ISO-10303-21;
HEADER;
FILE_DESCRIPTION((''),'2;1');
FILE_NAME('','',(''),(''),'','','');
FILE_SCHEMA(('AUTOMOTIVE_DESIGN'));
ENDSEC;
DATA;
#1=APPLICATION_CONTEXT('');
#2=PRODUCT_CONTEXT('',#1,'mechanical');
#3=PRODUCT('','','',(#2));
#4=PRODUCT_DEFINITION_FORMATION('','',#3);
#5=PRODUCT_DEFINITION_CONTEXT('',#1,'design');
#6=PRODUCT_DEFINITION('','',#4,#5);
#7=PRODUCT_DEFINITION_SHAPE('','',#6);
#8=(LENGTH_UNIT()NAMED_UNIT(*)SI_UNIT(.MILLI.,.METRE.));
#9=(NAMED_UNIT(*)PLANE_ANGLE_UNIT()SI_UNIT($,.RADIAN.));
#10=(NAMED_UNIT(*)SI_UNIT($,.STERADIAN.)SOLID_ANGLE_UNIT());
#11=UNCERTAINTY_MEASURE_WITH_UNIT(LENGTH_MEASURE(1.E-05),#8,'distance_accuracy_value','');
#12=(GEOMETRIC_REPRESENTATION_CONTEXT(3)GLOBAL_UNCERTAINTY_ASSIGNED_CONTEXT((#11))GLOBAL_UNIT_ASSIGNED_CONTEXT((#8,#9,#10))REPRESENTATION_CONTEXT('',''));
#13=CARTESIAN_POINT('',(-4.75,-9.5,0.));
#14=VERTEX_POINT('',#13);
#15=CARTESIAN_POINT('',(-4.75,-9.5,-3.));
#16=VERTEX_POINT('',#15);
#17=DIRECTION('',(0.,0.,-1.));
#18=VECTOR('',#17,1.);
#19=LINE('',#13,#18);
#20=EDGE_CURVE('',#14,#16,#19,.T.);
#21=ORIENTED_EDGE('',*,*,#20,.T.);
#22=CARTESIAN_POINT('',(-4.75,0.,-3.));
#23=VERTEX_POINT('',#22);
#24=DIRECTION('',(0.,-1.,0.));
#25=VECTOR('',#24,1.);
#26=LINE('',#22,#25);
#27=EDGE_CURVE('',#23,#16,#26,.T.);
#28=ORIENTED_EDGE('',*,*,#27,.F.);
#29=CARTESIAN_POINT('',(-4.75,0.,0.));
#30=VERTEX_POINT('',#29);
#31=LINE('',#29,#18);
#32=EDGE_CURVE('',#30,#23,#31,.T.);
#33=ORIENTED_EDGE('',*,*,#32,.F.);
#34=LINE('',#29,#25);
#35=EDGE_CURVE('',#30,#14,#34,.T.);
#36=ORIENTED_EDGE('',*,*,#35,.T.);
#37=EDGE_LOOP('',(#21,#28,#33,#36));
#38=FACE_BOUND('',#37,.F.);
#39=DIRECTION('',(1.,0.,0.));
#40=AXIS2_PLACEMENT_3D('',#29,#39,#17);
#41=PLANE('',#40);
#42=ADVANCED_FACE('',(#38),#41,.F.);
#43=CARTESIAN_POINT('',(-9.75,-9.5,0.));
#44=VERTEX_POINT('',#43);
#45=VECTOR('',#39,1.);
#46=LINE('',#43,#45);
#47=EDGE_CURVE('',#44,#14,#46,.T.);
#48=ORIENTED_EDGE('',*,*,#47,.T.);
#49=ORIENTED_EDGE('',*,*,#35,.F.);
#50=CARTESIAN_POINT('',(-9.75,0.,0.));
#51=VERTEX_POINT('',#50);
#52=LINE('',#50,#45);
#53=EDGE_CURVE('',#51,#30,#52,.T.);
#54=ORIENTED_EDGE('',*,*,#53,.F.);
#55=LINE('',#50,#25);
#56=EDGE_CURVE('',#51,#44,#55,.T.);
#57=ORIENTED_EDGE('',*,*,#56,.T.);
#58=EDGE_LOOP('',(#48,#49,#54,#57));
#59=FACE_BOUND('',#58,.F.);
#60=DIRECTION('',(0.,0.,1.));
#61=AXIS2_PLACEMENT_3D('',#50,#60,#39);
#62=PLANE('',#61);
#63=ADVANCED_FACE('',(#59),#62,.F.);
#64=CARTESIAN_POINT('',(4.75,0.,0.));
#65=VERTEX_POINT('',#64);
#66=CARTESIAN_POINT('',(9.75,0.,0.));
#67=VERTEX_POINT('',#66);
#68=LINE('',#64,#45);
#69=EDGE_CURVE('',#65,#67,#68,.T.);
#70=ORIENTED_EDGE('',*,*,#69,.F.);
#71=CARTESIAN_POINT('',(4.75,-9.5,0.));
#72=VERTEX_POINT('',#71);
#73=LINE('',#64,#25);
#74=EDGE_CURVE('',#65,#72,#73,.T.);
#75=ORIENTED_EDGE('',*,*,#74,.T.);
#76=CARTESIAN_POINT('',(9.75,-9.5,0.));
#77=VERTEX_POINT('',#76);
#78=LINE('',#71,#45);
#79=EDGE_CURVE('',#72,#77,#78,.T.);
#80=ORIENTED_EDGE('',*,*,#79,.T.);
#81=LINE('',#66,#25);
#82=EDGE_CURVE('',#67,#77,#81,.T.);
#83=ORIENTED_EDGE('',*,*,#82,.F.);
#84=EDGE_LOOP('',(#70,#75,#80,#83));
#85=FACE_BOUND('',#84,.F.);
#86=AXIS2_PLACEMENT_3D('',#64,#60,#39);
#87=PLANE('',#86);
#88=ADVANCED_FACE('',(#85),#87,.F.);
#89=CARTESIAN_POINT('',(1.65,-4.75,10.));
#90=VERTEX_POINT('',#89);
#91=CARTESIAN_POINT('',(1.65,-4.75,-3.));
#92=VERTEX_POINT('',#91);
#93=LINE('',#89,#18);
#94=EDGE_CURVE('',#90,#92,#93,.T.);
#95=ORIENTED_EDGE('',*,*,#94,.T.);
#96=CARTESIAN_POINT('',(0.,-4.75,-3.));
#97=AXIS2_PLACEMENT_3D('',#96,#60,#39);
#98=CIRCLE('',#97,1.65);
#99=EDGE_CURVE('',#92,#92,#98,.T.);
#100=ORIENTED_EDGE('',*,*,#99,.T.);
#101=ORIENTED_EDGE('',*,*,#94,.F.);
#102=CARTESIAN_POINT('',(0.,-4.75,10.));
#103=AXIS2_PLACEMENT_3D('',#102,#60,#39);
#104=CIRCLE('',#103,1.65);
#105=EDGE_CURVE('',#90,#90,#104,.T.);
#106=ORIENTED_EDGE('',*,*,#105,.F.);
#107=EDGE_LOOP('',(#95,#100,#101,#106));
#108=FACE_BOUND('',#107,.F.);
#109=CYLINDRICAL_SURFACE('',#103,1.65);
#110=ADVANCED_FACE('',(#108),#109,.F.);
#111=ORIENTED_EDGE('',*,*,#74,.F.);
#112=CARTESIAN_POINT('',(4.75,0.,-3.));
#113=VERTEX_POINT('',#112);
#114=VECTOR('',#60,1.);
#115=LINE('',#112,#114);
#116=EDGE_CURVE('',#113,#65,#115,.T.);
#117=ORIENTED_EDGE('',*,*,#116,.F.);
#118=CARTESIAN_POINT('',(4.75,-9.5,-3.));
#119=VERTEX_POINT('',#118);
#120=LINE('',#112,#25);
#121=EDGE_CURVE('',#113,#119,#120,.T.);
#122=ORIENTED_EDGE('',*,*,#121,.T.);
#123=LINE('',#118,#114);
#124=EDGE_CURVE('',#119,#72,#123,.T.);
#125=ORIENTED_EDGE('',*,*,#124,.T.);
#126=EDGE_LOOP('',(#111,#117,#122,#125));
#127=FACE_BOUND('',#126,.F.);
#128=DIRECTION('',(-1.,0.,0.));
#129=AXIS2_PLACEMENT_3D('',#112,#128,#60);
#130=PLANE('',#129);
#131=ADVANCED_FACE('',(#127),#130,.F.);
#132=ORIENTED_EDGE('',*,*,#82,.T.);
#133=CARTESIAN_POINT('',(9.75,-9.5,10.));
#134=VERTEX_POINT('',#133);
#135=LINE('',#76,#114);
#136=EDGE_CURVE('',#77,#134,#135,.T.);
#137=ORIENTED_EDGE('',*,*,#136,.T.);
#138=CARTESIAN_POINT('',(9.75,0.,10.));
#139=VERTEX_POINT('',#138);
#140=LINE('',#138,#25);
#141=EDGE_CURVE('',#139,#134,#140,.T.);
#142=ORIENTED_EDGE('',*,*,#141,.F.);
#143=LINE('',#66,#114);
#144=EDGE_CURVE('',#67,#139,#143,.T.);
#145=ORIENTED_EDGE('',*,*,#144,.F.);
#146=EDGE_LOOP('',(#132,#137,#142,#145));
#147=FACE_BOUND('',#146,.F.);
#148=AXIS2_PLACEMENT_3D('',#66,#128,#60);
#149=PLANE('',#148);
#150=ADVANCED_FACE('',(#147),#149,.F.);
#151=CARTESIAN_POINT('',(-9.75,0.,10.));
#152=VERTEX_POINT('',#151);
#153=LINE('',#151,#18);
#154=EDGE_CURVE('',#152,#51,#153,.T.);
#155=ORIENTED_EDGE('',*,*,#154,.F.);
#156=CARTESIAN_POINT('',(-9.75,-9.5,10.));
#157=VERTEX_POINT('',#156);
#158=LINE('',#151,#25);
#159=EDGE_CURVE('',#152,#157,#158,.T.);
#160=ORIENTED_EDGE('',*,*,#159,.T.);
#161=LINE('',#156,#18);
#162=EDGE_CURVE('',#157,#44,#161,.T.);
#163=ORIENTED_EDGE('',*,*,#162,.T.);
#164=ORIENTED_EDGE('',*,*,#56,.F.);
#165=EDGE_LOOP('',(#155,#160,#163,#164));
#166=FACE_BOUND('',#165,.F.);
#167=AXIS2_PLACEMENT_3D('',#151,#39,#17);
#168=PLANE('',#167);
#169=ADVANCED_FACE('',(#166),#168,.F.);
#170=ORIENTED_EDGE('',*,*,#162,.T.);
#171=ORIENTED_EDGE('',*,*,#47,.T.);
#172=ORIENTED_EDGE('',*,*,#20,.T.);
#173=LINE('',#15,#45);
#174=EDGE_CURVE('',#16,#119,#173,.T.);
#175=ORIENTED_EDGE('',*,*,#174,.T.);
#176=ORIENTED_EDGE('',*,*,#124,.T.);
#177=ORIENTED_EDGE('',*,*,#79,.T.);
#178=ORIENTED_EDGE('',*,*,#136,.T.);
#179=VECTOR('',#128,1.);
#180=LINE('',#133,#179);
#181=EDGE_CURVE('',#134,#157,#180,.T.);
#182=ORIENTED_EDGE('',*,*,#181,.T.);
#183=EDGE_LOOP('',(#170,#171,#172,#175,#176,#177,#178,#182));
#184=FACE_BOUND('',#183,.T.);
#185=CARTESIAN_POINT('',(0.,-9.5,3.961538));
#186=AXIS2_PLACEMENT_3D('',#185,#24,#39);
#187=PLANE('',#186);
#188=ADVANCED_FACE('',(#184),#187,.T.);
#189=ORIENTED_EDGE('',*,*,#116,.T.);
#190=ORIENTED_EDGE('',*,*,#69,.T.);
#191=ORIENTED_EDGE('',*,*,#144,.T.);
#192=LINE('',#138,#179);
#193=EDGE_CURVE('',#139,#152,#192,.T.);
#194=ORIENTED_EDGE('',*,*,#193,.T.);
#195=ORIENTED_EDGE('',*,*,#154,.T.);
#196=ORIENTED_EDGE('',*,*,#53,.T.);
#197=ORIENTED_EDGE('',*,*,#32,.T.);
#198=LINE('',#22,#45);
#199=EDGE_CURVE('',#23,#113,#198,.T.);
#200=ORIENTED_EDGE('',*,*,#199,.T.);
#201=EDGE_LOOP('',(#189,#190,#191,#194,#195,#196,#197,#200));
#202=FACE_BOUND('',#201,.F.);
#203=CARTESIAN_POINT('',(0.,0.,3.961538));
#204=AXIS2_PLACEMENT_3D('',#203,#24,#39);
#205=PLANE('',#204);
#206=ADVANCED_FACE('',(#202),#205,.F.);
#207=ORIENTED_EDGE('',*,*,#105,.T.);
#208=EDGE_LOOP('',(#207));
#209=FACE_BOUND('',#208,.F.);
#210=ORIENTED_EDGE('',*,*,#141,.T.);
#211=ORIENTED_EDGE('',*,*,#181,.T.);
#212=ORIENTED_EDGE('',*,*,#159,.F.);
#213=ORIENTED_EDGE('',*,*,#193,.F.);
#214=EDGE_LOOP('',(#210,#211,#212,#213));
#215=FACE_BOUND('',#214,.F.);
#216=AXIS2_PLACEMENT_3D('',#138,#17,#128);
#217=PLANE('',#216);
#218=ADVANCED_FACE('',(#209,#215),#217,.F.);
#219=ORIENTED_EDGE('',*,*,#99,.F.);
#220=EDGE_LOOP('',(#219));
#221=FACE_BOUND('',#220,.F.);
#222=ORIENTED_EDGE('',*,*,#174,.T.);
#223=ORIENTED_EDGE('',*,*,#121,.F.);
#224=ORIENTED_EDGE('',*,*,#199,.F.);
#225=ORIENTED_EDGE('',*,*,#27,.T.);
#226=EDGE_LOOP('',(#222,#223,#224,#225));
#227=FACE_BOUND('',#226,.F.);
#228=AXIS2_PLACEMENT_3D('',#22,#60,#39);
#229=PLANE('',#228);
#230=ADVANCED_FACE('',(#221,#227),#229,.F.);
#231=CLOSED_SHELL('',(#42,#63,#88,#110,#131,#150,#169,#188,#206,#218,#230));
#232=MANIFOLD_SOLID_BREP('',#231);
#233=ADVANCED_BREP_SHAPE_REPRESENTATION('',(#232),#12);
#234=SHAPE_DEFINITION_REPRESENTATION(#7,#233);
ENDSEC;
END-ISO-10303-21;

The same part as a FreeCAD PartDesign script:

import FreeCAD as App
import Part
import Sketcher

doc = App.newDocument("Part")
body = doc.addObject("PartDesign::Body", "Body")

# Sketch on XZ plane
sketch1 = body.newObject("Sketcher::SketchObject", "Sketch")
sketch1.AttachmentSupport = (doc.getObject("XZ_Plane"), [""])
sketch1.MapMode = "FlatFace"
sketch1.addGeometry(Part.LineSegment(App.Vector(9.75, 10, 0), App.Vector(-9.75, 10, 0)), False)
sketch1.addGeometry(Part.LineSegment(App.Vector(-9.75, 10, 0), App.Vector(-9.75, 0, 0)), False)
sketch1.addGeometry(Part.LineSegment(App.Vector(-9.75, 0, 0), App.Vector(-4.75, 0, 0)), False)
sketch1.addGeometry(Part.LineSegment(App.Vector(-4.75, 0, 0), App.Vector(-4.75, -3, 0)), False)
sketch1.addGeometry(Part.LineSegment(App.Vector(-4.75, -3, 0), App.Vector(4.75, -3, 0)), False)
sketch1.addGeometry(Part.LineSegment(App.Vector(4.75, -3, 0), App.Vector(4.75, 0, 0)), False)
sketch1.addGeometry(Part.LineSegment(App.Vector(4.75, 0, 0), App.Vector(9.75, 0, 0)), False)
sketch1.addGeometry(Part.LineSegment(App.Vector(9.75, 0, 0), App.Vector(9.75, 10, 0)), False)
sketch1.addConstraint(Sketcher.Constraint("Coincident", 0, 2, 1, 1))
sketch1.addConstraint(Sketcher.Constraint("Coincident", 1, 2, 2, 1))
sketch1.addConstraint(Sketcher.Constraint("Coincident", 2, 2, 3, 1))
sketch1.addConstraint(Sketcher.Constraint("Coincident", 3, 2, 4, 1))
sketch1.addConstraint(Sketcher.Constraint("Coincident", 4, 2, 5, 1))
sketch1.addConstraint(Sketcher.Constraint("Coincident", 5, 2, 6, 1))
sketch1.addConstraint(Sketcher.Constraint("Coincident", 6, 2, 7, 1))
sketch1.addConstraint(Sketcher.Constraint("Coincident", 7, 2, 0, 1))
sketch1.addConstraint(Sketcher.Constraint("Horizontal", 0))
sketch1.addConstraint(Sketcher.Constraint("Vertical", 1))
sketch1.addConstraint(Sketcher.Constraint("Horizontal", 2))
sketch1.addConstraint(Sketcher.Constraint("Vertical", 3))
sketch1.addConstraint(Sketcher.Constraint("Horizontal", 4))
sketch1.addConstraint(Sketcher.Constraint("Vertical", 5))
sketch1.addConstraint(Sketcher.Constraint("Horizontal", 6))
sketch1.addConstraint(Sketcher.Constraint("Vertical", 7))
sketch1.addConstraint(Sketcher.Constraint("Symmetric", 2, 2, 5, 2, -1, 1))
sketch1.addConstraint(Sketcher.Constraint("Symmetric", 1, 2, 6, 2, -2))
sketch1.addConstraint(Sketcher.Constraint("DistanceX", 2, 1, 2, 2, 5.0))
sketch1.addConstraint(Sketcher.Constraint("DistanceY", 1, 2, 1, 1, 10.0))
sketch1.addConstraint(Sketcher.Constraint("DistanceY", 3, 2, 3, 1, 3.0))
sketch1.addConstraint(Sketcher.Constraint("DistanceX", 0, 2, 0, 1, 19.5))
pad1 = body.newObject("PartDesign::Pad", "Pad")
pad1.Profile = sketch1
pad1.Length = 9.5

# Sketch on XY plane
sketch2 = body.newObject("Sketcher::SketchObject", "Sketch001")
sketch2.AttachmentSupport = (doc.getObject("XY_Plane"), [""])
sketch2.MapMode = "FlatFace"
sketch2.AttachmentOffset = App.Placement(App.Vector(0, 0, 10), App.Rotation())
sketch2.addGeometry(Part.Circle(App.Vector(0, -4.75, 0), App.Vector(0, 0, 1), 1.65), False)
sketch2.addConstraint(Sketcher.Constraint("PointOnObject", 0, 3, -2))
sketch2.addConstraint(Sketcher.Constraint("Diameter", 0, 3.3))
sketch2.addConstraint(Sketcher.Constraint("DistanceY", 0, 3, -1, 1, 4.75))
pocket1 = body.newObject("PartDesign::Pocket", "Pocket")
pocket1.Profile = sketch2
pocket1.Type = "ThroughAll"

doc.recompute()
